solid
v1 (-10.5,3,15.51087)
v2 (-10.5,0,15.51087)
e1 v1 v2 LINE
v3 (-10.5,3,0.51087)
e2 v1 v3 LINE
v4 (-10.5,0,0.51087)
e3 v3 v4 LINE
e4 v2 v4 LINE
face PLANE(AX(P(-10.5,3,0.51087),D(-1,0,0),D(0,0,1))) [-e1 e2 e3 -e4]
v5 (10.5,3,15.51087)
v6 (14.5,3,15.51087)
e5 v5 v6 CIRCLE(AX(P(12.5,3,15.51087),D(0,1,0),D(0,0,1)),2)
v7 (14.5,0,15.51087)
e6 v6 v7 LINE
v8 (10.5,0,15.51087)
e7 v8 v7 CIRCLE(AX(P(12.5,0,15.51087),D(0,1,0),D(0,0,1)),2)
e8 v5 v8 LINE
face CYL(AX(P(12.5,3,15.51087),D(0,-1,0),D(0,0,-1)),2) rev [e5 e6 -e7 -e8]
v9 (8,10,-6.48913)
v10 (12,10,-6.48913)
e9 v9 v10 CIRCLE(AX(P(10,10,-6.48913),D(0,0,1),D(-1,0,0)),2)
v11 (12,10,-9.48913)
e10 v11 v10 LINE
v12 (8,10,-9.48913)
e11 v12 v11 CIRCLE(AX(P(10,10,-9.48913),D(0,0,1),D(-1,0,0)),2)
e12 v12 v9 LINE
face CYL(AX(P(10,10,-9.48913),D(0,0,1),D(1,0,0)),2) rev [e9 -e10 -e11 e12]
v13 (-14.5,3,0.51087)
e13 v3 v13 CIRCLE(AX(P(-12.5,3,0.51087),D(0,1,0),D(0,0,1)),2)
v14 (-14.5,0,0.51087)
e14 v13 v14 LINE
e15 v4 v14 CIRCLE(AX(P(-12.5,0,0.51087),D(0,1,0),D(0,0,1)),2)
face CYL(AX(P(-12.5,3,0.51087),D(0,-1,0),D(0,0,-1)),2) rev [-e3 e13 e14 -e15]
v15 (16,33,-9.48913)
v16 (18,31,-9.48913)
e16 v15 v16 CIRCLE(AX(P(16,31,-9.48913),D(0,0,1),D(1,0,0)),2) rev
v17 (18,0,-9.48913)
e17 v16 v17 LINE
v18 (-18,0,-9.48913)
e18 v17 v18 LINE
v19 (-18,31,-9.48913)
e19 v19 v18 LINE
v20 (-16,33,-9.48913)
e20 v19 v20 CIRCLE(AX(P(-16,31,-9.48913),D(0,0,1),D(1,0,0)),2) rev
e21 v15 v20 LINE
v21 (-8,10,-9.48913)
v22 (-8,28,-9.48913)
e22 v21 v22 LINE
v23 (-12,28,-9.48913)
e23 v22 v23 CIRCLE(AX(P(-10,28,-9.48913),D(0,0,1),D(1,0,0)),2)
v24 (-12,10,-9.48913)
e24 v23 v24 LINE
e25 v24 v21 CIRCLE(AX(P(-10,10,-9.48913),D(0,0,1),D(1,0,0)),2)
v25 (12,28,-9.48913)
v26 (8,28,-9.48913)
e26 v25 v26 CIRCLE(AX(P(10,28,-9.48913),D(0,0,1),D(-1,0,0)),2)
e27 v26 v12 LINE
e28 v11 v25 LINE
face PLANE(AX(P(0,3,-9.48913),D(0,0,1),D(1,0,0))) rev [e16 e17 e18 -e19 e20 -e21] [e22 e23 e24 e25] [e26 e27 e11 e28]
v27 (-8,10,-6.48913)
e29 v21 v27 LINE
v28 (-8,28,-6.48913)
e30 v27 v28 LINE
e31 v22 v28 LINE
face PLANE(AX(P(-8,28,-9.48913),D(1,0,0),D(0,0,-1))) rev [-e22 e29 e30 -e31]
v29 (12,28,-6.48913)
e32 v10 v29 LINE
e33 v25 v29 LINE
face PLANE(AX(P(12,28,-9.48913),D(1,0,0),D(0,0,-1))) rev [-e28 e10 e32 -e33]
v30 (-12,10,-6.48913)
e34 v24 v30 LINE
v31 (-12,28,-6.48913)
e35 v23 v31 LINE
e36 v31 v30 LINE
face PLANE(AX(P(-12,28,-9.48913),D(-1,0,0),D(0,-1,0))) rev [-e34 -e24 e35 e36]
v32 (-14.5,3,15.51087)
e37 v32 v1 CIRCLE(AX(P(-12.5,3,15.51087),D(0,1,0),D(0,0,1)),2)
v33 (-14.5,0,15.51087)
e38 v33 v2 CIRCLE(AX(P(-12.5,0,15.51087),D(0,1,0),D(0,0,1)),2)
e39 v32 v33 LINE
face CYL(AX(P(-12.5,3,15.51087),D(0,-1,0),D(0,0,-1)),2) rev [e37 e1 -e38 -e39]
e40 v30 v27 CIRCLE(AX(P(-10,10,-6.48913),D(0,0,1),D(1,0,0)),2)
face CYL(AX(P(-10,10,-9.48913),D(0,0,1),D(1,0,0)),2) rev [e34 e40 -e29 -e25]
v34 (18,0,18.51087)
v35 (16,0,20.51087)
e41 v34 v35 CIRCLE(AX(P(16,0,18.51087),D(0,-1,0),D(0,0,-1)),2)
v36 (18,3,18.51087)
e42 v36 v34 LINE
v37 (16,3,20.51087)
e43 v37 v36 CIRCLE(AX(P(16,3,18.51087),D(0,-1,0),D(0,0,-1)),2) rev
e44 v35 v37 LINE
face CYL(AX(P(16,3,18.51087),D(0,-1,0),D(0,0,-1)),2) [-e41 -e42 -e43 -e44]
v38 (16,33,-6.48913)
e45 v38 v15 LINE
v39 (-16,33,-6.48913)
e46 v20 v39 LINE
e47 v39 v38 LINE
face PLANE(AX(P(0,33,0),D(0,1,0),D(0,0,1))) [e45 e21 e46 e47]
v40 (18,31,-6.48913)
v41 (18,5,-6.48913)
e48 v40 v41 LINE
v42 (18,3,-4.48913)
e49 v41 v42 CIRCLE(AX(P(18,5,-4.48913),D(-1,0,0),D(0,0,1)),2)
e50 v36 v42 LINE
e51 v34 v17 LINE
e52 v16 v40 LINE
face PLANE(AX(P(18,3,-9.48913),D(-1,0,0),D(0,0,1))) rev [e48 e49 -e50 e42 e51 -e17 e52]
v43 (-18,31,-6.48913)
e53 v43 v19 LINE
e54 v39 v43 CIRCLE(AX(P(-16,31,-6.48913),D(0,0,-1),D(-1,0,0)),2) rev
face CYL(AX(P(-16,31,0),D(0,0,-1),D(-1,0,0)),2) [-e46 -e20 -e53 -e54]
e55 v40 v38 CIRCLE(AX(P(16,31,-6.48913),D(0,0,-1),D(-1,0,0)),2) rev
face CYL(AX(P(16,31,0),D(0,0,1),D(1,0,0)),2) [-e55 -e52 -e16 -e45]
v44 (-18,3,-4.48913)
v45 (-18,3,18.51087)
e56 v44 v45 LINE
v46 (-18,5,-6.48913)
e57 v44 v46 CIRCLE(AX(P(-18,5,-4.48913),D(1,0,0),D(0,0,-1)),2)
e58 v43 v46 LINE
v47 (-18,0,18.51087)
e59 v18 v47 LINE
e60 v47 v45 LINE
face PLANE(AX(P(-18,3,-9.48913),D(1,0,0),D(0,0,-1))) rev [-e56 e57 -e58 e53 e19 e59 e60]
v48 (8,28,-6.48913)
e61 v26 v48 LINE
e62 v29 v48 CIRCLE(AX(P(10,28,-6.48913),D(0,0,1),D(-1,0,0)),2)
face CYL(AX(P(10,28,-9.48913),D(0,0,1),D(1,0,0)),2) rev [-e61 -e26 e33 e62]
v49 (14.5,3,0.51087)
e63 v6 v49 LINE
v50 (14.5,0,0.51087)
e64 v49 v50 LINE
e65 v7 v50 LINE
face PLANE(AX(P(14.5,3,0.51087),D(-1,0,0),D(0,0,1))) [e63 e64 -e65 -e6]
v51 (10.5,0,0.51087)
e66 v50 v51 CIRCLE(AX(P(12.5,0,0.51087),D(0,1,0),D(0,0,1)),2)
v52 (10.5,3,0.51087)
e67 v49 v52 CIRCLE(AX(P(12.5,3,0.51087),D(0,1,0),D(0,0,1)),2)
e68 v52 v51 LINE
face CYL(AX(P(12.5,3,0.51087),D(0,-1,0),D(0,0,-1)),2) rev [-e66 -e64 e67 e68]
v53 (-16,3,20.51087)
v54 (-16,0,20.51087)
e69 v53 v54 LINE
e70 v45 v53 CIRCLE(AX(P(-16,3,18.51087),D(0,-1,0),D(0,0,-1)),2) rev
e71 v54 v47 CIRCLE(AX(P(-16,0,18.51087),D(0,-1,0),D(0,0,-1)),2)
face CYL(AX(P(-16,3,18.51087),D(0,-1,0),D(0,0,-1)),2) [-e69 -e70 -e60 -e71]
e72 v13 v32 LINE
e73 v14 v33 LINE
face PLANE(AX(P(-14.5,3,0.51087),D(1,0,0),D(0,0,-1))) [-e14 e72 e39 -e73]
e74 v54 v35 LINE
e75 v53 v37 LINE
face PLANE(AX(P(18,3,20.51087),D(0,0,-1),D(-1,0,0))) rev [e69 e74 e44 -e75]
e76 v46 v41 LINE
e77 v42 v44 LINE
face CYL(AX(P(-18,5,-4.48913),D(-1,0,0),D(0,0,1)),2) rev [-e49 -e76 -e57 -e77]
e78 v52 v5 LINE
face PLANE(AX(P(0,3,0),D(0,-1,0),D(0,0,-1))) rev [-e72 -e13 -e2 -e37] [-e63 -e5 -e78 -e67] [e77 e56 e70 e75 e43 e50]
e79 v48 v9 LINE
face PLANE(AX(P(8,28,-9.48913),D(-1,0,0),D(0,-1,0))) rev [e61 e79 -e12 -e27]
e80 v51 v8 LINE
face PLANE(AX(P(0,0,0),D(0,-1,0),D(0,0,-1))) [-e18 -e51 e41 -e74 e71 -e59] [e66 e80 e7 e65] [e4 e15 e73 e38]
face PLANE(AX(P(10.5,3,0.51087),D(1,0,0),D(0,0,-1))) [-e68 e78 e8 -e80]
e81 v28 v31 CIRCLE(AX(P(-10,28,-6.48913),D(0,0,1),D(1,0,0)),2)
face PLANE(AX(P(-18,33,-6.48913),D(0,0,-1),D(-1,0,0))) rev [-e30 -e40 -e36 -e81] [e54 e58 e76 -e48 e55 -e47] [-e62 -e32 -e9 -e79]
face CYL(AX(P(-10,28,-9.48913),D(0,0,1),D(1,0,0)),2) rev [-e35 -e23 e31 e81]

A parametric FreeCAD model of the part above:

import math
import FreeCAD as App
import Part
import Sketcher


def edges_at(feature, points):
    """Names of the edges that pass closest to the given points."""
    edges = feature.Shape.Edges
    near = lambda p: min(range(len(edges)), key=lambda i: edges[i].distToShape(Part.Vertex(*p))[0])
    return sorted({f"Edge{near(p) + 1}" for p in points})


def add_polygon(sketch, points):
    """Adds a closed chain of lines whose ends are joined by coincident constraints."""
    first, n = sketch.GeometryCount, len(points)
    for a, b in zip(points, points[1:] + points[:1]):
        sketch.addGeometry(Part.LineSegment(App.Vector(*a, 0), App.Vector(*b, 0)), False)
    for i in range(n):
        sketch.addConstraint(Sketcher.Constraint("Coincident", first + i, 2, first + (i + 1) % n, 1))

doc = App.newDocument("Part")
body = doc.addObject("PartDesign::Body", "Body")

sketch1 = body.newObject("Sketcher::SketchObject", "Sketch")
sketch1.AttachmentSupport = (doc.getObject("XZ_Plane"), [""])
sketch1.MapMode = "FlatFace"
add_polygon(sketch1, [(-18, -9.5), (-18, 20.5), (18, 20.5), (18, -9.5)])
sketch1.addGeometry(Part.ArcOfCircle(Part.Circle(App.Vector(-12.5, 0.5, 0), App.Vector(0, 0, 1), 2), math.radians(180), math.radians(360)), False)
sketch1.addGeometry(Part.LineSegment(App.Vector(-10.5, 0.5, 0), App.Vector(-10.5, 15.5, 0)), False)
sketch1.addGeometry(Part.ArcOfCircle(Part.Circle(App.Vector(-12.5, 15.5, 0), App.Vector(0, 0, 1), 2), math.radians(0), math.radians(180)), False)
sketch1.addGeometry(Part.LineSegment(App.Vector(-14.5, 15.5, 0), App.Vector(-14.5, 0.5, 0)), False)
sketch1.addGeometry(Part.ArcOfCircle(Part.Circle(App.Vector(12.5, 0.5, 0), App.Vector(0, 0, 1), 2), math.radians(180), math.radians(360)), False)
sketch1.addGeometry(Part.LineSegment(App.Vector(14.5, 0.5, 0), App.Vector(14.5, 15.5, 0)), False)
sketch1.addGeometry(Part.ArcOfCircle(Part.Circle(App.Vector(12.5, 15.5, 0), App.Vector(0, 0, 1), 2), math.radians(0), math.radians(180)), False)
sketch1.addGeometry(Part.LineSegment(App.Vector(10.5, 15.5, 0), App.Vector(10.5, 0.5, 0)), False)
sketch1.addConstraint([
    Sketcher.Constraint("Tangent", 4, 2, 5, 1),
    Sketcher.Constraint("Tangent", 5, 2, 6, 1),
    Sketcher.Constraint("Tangent", 6, 2, 7, 1),
    Sketcher.Constraint("Tangent", 7, 2, 4, 1),
    Sketcher.Constraint("Tangent", 8, 2, 9, 1),
    Sketcher.Constraint("Tangent", 9, 2, 10, 1),
    Sketcher.Constraint("Tangent", 10, 2, 11, 1),
    Sketcher.Constraint("Tangent", 11, 2, 8, 1),
    Sketcher.Constraint("Vertical", 0),
    Sketcher.Constraint("Horizontal", 1),
    Sketcher.Constraint("Vertical", 2),
    Sketcher.Constraint("Horizontal", 3),
    Sketcher.Constraint("Vertical", 5),
    Sketcher.Constraint("Vertical", 7),
    Sketcher.Constraint("Vertical", 9),
    Sketcher.Constraint("Vertical", 11),
    Sketcher.Constraint("Equal", 6, 8),
    Sketcher.Constraint("Symmetric", 4, 3, 8, 3, -2),
    Sketcher.Constraint("Horizontal", 6, 3, 10, 3),
    Sketcher.Constraint("Radius", 4, 2.0),
    Sketcher.Constraint("DistanceX", 1, 1, 1, 2, 36.0),
    Sketcher.Constraint("DistanceY", 0, 1, 0, 2, 30.0),
    Sketcher.Constraint("DistanceY", 5, 1, 5, 2, 15.0),
    Sketcher.Constraint("DistanceX", 0, 2, -1, 1, 18.0),
    Sketcher.Constraint("DistanceX", 4, 3, 8, 3, 25.0),
    Sketcher.Constraint("DistanceY", 6, 3, 0, 2, 5.0),
    Sketcher.Constraint("DistanceY", -1, 1, 4, 3, 0.51087),
])
pad1 = body.newObject("PartDesign::Pad", "Pad")
pad1.Profile = sketch1
pad1.Length = 3
pad1.Reversed = True

sketch2 = body.newObject("Sketcher::SketchObject", "Sketch001")
sketch2.AttachmentSupport = (doc.getObject("XZ_Plane"), [""])
sketch2.MapMode = "FlatFace"
sketch2.AttachmentOffset = App.Placement(App.Vector(0, 0, -3), App.Rotation())
add_polygon(sketch2, [(-18, -9.5), (-18, -6.5), (18, -6.5), (18, -9.5)])
sketch2.addConstraint([
    Sketcher.Constraint("Vertical", 0),
    Sketcher.Constraint("Horizontal", 1),
    Sketcher.Constraint("Vertical", 2),
    Sketcher.Constraint("Horizontal", 3),
    Sketcher.Constraint("DistanceX", 1, 1, 1, 2, 36.0),
    Sketcher.Constraint("DistanceY", 0, 1, 0, 2, 3.0),
    Sketcher.Constraint("DistanceX", 0, 2, -1, 1, 18.0),
    Sketcher.Constraint("DistanceY", 0, 2, -1, 1, 6.48913),
])
pad2 = body.newObject("PartDesign::Pad", "Pad001")
pad2.Profile = sketch2
pad2.Length = 30
pad2.Reversed = True

sketch3 = body.newObject("Sketcher::SketchObject", "Sketch002")
sketch3.AttachmentSupport = (doc.getObject("XY_Plane"), [""])
sketch3.MapMode = "FlatFace"
sketch3.AttachmentOffset = App.Placement(App.Vector(0, 0, -6.48913), App.Rotation())
sketch3.addGeometry([
    Part.LineSegment(App.Vector(-8, 10, 0), App.Vector(-8, 28, 0)),
    Part.ArcOfCircle(Part.Circle(App.Vector(-10, 28, 0), App.Vector(0, 0, 1), 2), math.radians(0), math.radians(180)),
    Part.LineSegment(App.Vector(-12, 28, 0), App.Vector(-12, 10, 0)),
    Part.ArcOfCircle(Part.Circle(App.Vector(-10, 10, 0), App.Vector(0, 0, 1), 2), math.radians(180), math.radians(360)),
    Part.LineSegment(App.Vector(8, 28, 0), App.Vector(8, 10, 0)),
    Part.ArcOfCircle(Part.Circle(App.Vector(10, 10, 0), App.Vector(0, 0, 1), 2), math.radians(180), math.radians(360)),
    Part.LineSegment(App.Vector(12, 10, 0), App.Vector(12, 28, 0)),
    Part.ArcOfCircle(Part.Circle(App.Vector(10, 28, 0), App.Vector(0, 0, 1), 2), math.radians(0), math.radians(180)),
], False)
sketch3.addConstraint([
    Sketcher.Constraint("Tangent", 0, 2, 1, 1),
    Sketcher.Constraint("Tangent", 1, 2, 2, 1),
    Sketcher.Constraint("Tangent", 2, 2, 3, 1),
    Sketcher.Constraint("Tangent", 3, 2, 0, 1),
    Sketcher.Constraint("Tangent", 4, 2, 5, 1),
    Sketcher.Constraint("Tangent", 5, 2, 6, 1),
    Sketcher.Constraint("Tangent", 6, 2, 7, 1),
    Sketcher.Constraint("Tangent", 7, 2, 4, 1),
    Sketcher.Constraint("Vertical", 0),
    Sketcher.Constraint("Vertical", 2),
    Sketcher.Constraint("Vertical", 4),
    Sketcher.Constraint("Vertical", 6),
    Sketcher.Constraint("Equal", 3, 5),
    Sketcher.Constraint("Symmetric", 3, 3, 5, 3, -2),
    Sketcher.Constraint("Horizontal", 1, 3, 7, 3),
    Sketcher.Constraint("Radius", 1, 2.0),
    Sketcher.Constraint("DistanceY", 0, 1, 0, 2, 18.0),
    Sketcher.Constraint("DistanceX", 1, 3, -1, 1, 10.0),
    Sketcher.Constraint("DistanceY", -1, 1, 1, 3, 28.0),
])
pocket1 = body.newObject("PartDesign::Pocket", "Pocket")
pocket1.Profile = sketch3
pocket1.Type = "ThroughAll"
pocket1.Midplane = True
doc.recompute()

fillet = body.newObject("PartDesign::Fillet", "Fillet")
fillet.Base = (pocket1, edges_at(pocket1, [
    (18, 1.5, 20.511),
    (-18, 1.5, 20.511),
    (-18, 33, -7.989),
    (18, 33, -7.989),
]))
fillet.Radius = 2
doc.recompute()

fillet2 = body.newObject("PartDesign::Fillet", "Fillet001")
fillet2.Base = (fillet, edges_at(fillet, [(0, 3, -6.489)]))
fillet2.Radius = 2

doc.recompute()
